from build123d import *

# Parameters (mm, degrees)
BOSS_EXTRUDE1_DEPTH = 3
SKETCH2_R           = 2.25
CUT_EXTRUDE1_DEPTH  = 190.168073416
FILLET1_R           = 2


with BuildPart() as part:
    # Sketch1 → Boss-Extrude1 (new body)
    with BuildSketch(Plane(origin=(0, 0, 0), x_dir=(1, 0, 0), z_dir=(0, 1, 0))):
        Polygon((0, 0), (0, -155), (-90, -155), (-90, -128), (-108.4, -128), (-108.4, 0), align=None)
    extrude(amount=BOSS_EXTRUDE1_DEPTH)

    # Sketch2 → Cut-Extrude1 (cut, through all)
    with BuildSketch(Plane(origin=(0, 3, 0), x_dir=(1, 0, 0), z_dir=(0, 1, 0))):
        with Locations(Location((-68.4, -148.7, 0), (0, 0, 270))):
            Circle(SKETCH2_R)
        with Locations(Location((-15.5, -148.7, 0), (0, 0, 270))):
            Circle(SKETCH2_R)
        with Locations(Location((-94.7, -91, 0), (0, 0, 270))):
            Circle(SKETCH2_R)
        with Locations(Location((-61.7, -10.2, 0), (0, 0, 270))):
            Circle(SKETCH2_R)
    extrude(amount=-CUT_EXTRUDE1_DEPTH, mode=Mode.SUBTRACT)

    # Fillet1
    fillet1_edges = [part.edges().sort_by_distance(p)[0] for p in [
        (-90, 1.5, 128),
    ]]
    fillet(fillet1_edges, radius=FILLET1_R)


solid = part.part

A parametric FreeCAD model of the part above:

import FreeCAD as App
import Part
import Sketcher

V = App.Vector
Q = App.Units.Quantity


def edges_at(feature, points):
    """Names of the edges that pass closest to the given points."""
    edges = feature.Shape.Edges
    near = lambda p: min(range(len(edges)), key=lambda i: edges[i].distToShape(Part.Vertex(*p))[0])
    return sorted({f"Edge{near(p) + 1}" for p in points})


def add_polygon(sketch, points):
    """Adds a closed chain of lines whose ends are joined by coincident constraints."""
    first, n = sketch.GeometryCount, len(points)
    for a, b in zip(points, points[1:] + points[:1]):
        sketch.addGeometry(Part.LineSegment(App.Vector(*a, 0), App.Vector(*b, 0)), False)
    for i in range(n):
        sketch.addConstraint(Sketcher.Constraint("Coincident", first + i, 2, first + (i + 1) % n, 1))

doc = App.newDocument("Part")
body = doc.addObject("PartDesign::Body", "Body")

sketch1 = doc.addObject("Sketcher::SketchObject", "Sketch")
body.addObject(sketch1)
sketch1.AttachmentSupport = (doc.XZ_Plane, [""])
sketch1.MapMode = "FlatFace"
add_polygon(sketch1, [(0, 155), (0, 0), (-108.4, 0), (-108.4, 128), (-90, 128), (-90, 155)])
sketch1.addConstraint(Sketcher.Constraint("Vertical", 0))
sketch1.addConstraint(Sketcher.Constraint("Horizontal", 1))
sketch1.addConstraint(Sketcher.Constraint("Vertical", 2))
sketch1.addConstraint(Sketcher.Constraint("Horizontal", 3))
sketch1.addConstraint(Sketcher.Constraint("Vertical", 4))
sketch1.addConstraint(Sketcher.Constraint("Horizontal", 5))
sketch1.addConstraint(Sketcher.Constraint("Coincident", 0, 2, -1, 1))
sketch1.addConstraint(Sketcher.Constraint("DistanceX", 5, 1, 5, 2, Q("90 mm")))
sketch1.addConstraint(Sketcher.Constraint("DistanceY", 0, 2, 0, 1, Q("155 mm")))
sketch1.addConstraint(Sketcher.Constraint("DistanceY", 2, 1, 2, 2, Q("128 mm")))
sketch1.addConstraint(Sketcher.Constraint("DistanceX", 1, 2, 1, 1, Q("108.4 mm")))
pad1 = doc.addObject("PartDesign::Pad", "Pad")
body.addObject(pad1)
pad1.Profile = sketch1
pad1.Length = 3
pad1.Reversed = True

sketch2 = doc.addObject("Sketcher::SketchObject", "Sketch001")
body.addObject(sketch2)
sketch2.AttachmentSupport = (doc.XZ_Plane, [""])
sketch2.MapMode = "FlatFace"
sketch2.AttachmentOffset = App.Placement(V(0, 0, -3), App.Rotation())
sketch2.addGeometry(Part.Circle(V(-68.4, 148.7, 0), V(0, 0, 1), 2.25), False)
sketch2.addGeometry(Part.Circle(V(-15.5, 148.7, 0), V(0, 0, 1), 2.25), False)
sketch2.addGeometry(Part.Circle(V(-94.7, 91, 0), V(0, 0, 1), 2.25), False)
sketch2.addGeometry(Part.Circle(V(-61.7, 10.2, 0), V(0, 0, 1), 2.25), False)
sketch2.addConstraint(Sketcher.Constraint("Equal", 0, 1))
sketch2.addConstraint(Sketcher.Constraint("Equal", 1, 2))
sketch2.addConstraint(Sketcher.Constraint("Equal", 2, 3))
sketch2.addConstraint(Sketcher.Constraint("Horizontal", 0, 3, 1, 3))
sketch2.addConstraint(Sketcher.Constraint("Diameter", 0, Q("4.5 mm")))
sketch2.addConstraint(Sketcher.Constraint("DistanceY", -1, 1, 2, 3, Q("91 mm")))
sketch2.addConstraint(Sketcher.Constraint("DistanceX", 2, 3, 3, 3, Q("33 mm")))
sketch2.addConstraint(Sketcher.Constraint("DistanceX", 0, 3, -1, 1, Q("68.4 mm")))
sketch2.addConstraint(Sketcher.Constraint("DistanceY", -1, 1, 0, 3, Q("148.7 mm")))
sketch2.addConstraint(Sketcher.Constraint("DistanceX", 1, 3, -1, 1, Q("15.5 mm")))
sketch2.addConstraint(Sketcher.Constraint("DistanceX", 2, 3, -1, 1, Q("94.7 mm")))
sketch2.addConstraint(Sketcher.Constraint("DistanceY", -1, 1, 3, 3, Q("10.2 mm")))
pocket1 = doc.addObject("PartDesign::Pocket", "Pocket")
body.addObject(pocket1)
pocket1.Profile = sketch2
pocket1.Type = "ThroughAll"
pocket1.Reversed = True
doc.recompute()

fillet = doc.addObject("PartDesign::Fillet", "Fillet")
body.addObject(fillet)
fillet.Base = (pocket1, edges_at(pocket1, [(-90, 1.5, 128)]))
fillet.Radius = 2

doc.recompute()
